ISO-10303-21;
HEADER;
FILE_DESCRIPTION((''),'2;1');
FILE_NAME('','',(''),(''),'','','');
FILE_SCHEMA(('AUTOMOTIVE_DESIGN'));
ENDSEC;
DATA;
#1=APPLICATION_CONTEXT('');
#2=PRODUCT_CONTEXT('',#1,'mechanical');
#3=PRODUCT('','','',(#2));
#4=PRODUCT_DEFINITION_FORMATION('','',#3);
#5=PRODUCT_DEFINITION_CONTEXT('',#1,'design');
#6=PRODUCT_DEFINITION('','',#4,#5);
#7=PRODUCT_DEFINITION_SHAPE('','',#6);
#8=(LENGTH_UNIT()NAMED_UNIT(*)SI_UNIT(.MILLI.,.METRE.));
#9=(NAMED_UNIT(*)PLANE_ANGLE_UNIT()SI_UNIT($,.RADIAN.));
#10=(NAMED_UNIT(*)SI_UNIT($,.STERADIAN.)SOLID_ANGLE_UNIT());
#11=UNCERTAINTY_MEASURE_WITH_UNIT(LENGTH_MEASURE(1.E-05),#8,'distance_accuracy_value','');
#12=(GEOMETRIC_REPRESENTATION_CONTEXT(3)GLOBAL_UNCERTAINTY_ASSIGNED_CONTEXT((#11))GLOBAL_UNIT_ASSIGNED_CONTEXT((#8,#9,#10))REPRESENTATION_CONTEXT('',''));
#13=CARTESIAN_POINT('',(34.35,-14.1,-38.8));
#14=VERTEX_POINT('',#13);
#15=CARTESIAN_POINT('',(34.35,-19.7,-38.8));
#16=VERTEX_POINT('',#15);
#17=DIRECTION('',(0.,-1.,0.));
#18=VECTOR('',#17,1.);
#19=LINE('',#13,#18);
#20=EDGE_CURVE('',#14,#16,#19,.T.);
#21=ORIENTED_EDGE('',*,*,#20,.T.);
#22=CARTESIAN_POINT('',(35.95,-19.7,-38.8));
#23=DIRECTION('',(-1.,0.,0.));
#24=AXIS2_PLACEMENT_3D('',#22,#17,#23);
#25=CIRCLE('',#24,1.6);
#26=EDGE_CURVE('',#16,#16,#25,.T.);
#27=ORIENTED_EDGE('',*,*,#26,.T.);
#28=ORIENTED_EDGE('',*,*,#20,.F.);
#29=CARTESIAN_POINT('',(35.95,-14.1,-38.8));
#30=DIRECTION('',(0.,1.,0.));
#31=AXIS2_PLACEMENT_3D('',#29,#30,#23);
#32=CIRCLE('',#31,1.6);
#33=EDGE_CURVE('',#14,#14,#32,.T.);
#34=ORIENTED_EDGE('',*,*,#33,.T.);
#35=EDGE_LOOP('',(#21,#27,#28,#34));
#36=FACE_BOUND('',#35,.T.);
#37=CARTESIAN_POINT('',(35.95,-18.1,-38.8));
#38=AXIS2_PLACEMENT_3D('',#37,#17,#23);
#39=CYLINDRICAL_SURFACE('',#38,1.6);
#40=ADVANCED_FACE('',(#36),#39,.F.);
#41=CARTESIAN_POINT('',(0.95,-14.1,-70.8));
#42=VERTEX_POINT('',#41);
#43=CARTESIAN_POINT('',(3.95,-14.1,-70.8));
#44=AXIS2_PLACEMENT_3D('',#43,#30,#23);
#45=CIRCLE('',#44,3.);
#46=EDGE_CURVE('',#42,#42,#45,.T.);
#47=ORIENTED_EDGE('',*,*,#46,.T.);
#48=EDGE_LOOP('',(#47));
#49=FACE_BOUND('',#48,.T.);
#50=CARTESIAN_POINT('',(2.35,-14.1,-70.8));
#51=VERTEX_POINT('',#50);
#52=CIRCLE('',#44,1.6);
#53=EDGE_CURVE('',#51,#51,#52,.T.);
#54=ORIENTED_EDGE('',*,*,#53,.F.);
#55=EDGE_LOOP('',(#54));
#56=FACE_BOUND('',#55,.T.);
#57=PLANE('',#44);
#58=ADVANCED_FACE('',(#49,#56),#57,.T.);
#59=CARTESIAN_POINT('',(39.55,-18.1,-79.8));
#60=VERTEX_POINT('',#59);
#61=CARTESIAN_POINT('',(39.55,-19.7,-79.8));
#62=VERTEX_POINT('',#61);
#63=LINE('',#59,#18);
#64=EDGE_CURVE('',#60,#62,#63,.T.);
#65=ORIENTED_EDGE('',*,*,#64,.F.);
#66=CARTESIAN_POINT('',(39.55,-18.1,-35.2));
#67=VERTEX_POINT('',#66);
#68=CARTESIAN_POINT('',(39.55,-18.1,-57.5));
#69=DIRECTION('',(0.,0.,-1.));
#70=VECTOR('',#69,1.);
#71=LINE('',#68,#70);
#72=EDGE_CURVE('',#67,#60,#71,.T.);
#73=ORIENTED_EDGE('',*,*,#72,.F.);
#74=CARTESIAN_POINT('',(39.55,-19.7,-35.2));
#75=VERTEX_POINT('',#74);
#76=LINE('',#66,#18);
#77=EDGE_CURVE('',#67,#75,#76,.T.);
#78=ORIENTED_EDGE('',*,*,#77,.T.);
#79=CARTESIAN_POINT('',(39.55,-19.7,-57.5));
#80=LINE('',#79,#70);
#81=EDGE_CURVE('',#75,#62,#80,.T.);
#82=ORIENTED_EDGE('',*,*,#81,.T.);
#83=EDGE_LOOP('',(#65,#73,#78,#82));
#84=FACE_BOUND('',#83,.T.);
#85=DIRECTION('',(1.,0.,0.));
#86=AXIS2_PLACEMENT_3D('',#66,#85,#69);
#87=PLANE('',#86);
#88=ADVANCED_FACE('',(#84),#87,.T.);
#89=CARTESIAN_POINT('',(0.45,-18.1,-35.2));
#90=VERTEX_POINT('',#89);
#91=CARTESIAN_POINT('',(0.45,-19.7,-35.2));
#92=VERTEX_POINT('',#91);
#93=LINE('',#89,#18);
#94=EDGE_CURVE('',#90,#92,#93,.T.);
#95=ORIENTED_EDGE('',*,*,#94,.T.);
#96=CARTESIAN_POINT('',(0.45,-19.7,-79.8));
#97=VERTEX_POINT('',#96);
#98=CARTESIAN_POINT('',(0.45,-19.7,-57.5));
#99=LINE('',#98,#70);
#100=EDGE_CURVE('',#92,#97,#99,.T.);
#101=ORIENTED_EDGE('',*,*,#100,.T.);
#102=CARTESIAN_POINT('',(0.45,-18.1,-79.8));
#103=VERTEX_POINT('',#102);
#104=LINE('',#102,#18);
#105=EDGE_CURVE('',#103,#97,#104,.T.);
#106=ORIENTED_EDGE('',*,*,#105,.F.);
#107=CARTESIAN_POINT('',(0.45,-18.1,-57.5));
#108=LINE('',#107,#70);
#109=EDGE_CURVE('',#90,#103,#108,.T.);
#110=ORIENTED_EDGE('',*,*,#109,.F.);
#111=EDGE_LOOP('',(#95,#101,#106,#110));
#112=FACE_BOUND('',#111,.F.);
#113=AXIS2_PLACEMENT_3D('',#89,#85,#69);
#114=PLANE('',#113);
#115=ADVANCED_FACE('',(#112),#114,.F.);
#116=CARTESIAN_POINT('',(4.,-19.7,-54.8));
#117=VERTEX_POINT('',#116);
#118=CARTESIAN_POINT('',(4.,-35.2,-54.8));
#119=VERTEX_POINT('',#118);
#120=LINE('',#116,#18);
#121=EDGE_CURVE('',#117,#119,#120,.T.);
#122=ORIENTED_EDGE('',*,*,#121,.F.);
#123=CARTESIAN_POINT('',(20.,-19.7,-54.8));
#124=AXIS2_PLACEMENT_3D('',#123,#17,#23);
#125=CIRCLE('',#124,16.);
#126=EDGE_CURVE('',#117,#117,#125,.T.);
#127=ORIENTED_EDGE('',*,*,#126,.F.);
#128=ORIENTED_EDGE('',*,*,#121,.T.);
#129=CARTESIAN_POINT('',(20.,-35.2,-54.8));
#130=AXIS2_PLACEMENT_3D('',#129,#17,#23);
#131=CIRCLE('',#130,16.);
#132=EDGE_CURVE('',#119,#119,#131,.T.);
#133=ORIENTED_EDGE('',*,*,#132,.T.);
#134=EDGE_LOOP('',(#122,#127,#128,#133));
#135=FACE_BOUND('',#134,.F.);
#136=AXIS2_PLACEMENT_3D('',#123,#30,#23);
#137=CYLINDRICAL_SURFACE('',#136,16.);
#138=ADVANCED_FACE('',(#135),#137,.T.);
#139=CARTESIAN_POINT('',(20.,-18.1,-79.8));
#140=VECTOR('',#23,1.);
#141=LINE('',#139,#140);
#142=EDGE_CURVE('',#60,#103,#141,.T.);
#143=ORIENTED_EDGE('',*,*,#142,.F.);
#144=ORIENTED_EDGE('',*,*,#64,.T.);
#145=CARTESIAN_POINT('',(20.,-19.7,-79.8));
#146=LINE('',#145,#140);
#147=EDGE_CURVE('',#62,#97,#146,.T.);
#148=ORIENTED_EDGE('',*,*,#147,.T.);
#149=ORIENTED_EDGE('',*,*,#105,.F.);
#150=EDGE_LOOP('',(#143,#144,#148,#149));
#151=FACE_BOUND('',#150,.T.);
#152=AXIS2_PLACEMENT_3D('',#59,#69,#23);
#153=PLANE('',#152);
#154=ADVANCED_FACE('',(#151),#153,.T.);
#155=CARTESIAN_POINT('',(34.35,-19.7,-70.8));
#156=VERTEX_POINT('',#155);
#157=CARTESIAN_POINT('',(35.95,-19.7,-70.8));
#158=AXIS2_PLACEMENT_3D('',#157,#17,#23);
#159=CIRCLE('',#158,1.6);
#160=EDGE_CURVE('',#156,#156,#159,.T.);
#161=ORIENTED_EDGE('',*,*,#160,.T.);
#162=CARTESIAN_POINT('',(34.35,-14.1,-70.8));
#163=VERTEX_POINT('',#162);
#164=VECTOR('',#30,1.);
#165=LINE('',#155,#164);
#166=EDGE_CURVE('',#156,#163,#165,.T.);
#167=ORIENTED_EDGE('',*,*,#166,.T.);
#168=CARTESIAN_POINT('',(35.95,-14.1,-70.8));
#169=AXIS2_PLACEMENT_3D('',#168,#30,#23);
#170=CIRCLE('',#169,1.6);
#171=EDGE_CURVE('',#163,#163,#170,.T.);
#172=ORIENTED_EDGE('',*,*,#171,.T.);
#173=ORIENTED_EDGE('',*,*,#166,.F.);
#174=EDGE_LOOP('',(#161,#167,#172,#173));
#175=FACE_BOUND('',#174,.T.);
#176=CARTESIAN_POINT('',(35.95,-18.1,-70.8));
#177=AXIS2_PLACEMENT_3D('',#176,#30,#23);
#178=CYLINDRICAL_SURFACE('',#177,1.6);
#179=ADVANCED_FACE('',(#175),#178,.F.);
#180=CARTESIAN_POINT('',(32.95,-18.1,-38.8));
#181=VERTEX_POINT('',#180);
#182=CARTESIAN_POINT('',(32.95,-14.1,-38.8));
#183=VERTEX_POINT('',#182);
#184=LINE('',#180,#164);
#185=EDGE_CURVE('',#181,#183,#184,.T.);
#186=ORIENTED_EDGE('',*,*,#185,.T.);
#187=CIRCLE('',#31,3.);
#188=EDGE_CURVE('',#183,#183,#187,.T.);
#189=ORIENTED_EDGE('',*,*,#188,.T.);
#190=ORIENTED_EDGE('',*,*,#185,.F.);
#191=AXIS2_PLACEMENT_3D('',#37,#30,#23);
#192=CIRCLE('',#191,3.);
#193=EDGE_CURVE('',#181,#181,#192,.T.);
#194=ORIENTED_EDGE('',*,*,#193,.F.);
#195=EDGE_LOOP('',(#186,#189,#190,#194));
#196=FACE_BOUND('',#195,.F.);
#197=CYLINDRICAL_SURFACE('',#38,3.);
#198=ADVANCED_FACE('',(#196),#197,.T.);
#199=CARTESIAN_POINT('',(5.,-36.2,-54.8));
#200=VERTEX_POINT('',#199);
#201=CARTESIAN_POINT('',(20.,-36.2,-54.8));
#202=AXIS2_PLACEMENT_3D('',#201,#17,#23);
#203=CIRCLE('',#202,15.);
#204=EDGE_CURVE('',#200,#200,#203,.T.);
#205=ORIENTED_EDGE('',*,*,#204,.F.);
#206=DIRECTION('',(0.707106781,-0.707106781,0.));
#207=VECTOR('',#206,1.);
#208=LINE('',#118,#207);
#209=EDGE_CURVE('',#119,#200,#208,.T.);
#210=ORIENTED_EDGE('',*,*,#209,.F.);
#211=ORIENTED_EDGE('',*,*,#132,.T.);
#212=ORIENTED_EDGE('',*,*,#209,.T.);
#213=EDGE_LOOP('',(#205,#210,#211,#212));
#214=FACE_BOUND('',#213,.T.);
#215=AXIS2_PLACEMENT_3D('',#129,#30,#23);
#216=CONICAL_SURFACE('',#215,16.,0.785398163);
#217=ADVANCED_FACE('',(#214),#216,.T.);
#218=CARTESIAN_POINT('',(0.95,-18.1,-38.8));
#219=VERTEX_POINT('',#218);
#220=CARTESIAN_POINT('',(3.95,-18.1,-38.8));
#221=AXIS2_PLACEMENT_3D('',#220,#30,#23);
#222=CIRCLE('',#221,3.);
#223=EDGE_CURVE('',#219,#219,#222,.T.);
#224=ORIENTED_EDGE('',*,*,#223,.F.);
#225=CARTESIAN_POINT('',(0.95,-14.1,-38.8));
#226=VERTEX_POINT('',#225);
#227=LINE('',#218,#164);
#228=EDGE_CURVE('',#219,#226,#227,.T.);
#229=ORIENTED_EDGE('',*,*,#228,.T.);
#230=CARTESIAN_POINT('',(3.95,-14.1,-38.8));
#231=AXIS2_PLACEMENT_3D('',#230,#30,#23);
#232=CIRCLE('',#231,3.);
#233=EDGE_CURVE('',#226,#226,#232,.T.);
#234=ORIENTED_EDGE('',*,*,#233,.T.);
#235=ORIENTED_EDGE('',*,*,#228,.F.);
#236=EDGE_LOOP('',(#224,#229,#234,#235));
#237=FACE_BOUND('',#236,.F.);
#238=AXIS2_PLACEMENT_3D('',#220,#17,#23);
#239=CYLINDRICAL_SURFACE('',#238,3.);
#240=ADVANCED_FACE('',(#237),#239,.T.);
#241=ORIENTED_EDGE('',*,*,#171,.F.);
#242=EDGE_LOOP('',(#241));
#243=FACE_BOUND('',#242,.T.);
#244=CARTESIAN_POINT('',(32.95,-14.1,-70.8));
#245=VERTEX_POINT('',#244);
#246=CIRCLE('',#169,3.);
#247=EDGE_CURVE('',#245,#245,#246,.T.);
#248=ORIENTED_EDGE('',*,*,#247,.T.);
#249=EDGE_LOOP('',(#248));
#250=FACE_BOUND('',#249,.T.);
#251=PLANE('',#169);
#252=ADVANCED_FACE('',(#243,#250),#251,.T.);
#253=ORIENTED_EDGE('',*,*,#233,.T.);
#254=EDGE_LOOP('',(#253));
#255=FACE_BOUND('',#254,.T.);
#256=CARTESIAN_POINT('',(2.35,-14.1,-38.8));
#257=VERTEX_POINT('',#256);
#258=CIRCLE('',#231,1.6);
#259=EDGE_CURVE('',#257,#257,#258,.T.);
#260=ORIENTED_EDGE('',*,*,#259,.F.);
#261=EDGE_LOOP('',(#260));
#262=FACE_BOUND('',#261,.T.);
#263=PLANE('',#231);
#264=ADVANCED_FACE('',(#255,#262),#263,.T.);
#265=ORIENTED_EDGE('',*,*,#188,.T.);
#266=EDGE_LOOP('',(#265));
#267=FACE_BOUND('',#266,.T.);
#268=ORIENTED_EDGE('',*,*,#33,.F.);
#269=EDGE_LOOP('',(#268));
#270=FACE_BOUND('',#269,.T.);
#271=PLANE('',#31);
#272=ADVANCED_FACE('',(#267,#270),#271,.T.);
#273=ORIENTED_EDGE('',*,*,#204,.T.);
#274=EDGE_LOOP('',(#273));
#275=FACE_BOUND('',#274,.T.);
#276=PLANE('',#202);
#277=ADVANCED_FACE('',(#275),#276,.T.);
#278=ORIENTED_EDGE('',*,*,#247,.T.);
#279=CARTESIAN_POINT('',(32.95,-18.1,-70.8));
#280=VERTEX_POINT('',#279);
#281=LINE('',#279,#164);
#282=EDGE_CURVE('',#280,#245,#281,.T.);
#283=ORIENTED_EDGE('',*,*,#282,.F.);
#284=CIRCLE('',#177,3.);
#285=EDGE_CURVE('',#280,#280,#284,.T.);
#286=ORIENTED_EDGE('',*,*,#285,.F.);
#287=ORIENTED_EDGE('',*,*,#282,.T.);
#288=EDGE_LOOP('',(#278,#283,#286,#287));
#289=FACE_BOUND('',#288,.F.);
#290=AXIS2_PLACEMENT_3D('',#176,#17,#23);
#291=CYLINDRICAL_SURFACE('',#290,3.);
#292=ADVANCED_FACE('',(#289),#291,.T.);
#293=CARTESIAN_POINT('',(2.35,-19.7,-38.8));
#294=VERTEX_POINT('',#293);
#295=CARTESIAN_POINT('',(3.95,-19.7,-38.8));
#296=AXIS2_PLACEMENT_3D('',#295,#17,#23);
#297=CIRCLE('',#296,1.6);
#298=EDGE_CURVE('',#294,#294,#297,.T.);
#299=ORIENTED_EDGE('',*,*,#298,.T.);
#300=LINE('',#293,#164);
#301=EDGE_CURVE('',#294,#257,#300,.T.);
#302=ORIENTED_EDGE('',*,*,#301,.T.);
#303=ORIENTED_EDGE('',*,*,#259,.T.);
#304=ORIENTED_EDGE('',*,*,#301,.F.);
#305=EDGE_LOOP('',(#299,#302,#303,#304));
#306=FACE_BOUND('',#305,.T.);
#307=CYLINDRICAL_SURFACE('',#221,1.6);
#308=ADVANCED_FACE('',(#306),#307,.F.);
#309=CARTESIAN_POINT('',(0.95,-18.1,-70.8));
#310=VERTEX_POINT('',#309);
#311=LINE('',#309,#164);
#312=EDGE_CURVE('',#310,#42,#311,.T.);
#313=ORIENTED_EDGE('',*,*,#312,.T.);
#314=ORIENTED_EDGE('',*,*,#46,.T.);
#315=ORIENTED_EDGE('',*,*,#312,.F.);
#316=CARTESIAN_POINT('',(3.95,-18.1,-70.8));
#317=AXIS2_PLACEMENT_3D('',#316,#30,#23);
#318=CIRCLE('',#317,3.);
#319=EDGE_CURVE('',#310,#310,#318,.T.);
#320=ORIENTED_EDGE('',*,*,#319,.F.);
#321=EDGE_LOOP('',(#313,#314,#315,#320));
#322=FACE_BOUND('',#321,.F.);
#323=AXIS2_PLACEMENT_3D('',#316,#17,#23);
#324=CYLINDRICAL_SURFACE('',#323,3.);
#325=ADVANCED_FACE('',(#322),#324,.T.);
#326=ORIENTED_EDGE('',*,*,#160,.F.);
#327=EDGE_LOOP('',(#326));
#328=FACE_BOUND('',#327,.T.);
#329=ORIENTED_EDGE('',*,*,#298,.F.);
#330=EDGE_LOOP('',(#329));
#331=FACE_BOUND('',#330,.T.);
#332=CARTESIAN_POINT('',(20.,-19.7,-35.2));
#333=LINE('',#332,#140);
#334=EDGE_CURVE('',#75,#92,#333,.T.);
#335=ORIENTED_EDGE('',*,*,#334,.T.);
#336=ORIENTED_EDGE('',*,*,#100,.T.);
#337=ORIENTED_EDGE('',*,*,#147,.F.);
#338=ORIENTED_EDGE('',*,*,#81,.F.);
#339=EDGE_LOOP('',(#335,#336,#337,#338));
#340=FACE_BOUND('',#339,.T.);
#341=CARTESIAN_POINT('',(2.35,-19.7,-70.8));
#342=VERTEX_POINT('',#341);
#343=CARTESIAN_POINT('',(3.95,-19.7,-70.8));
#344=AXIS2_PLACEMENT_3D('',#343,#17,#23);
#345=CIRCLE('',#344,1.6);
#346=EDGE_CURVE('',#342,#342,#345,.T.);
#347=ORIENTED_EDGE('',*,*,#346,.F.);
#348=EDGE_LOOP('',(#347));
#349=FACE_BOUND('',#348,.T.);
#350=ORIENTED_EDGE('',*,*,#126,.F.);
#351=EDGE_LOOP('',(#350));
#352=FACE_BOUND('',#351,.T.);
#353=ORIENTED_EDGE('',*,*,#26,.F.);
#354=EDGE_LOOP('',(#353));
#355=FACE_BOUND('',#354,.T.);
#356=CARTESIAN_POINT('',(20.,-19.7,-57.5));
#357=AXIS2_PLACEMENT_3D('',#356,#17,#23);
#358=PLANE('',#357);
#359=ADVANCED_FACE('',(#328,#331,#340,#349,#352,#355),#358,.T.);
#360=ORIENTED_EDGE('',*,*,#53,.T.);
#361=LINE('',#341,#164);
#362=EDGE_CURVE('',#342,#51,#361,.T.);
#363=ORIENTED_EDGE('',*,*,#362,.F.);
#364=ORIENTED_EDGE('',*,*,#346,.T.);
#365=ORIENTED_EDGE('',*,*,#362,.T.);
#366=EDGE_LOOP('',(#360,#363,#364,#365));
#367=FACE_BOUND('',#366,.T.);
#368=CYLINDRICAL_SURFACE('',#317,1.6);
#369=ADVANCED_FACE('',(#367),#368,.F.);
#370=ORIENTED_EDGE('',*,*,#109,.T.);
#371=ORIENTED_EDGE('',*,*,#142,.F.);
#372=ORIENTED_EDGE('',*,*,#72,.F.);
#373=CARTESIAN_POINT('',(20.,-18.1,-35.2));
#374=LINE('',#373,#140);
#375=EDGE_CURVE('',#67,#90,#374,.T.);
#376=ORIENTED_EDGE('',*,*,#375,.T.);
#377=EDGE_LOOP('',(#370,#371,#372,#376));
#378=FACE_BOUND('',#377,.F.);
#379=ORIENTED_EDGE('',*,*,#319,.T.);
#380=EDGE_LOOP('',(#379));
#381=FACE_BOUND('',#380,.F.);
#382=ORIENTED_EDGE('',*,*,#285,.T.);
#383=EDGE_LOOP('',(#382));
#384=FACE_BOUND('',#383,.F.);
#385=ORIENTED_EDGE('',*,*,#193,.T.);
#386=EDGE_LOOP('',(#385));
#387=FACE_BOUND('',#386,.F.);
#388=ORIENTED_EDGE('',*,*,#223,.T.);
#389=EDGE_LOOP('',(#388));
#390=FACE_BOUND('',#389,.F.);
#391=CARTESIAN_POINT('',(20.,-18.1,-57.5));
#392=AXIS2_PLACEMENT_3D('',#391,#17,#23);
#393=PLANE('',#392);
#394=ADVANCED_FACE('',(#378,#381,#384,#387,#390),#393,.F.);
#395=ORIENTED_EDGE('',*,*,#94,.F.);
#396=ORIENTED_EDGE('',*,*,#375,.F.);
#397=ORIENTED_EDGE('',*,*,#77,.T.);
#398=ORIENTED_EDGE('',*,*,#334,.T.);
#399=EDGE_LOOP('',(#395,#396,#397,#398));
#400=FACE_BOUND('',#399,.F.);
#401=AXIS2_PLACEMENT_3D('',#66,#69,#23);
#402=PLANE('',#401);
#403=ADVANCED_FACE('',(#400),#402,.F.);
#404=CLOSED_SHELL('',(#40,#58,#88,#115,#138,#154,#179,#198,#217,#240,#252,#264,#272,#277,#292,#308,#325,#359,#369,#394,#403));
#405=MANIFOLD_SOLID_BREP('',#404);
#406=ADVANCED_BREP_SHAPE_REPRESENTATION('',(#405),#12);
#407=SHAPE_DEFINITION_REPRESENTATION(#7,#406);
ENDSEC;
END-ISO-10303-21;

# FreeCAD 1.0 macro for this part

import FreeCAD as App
import Part
import Sketcher
from FreeCAD import Vector


def edges_at(feature, points):
    """Names of the edges that pass closest to the given points."""
    edges = feature.Shape.Edges
    near = lambda p: min(range(len(edges)), key=lambda i: edges[i].distToShape(Part.Vertex(*p))[0])
    return sorted({f"Edge{near(p) + 1}" for p in points})


def add_polygon(sketch, points):
    """Adds a closed chain of lines whose ends are joined by coincident constraints."""
    first, n = sketch.GeometryCount, len(points)
    for a, b in zip(points, points[1:] + points[:1]):
        sketch.addGeometry(Part.LineSegment(App.Vector(*a, 0), App.Vector(*b, 0)), False)
    for i in range(n):
        sketch.addConstraint(Sketcher.Constraint("Coincident", first + i, 2, first + (i + 1) % n, 1))

doc = App.newDocument("Part")
body = doc.addObject("PartDesign::Body", "Body")

sketch1 = body.newObject("Sketcher::SketchObject", "Sketch")
sketch1.AttachmentSupport = (doc.getObject("XZ_Plane"), [""])
sketch1.MapMode = "FlatFace"
add_polygon(sketch1, [(-19.6, 22.3), (-19.6, -22.3), (19.6, -22.3), (19.6, 22.3)])
sketch1.addGeometry(Part.Circle(Vector(-15.9, -18.7, 0), Vector(0, 0, 1), 1.6), False)
sketch1.addGeometry(Part.Circle(Vector(16.1, -18.7, 0), Vector(0, 0, 1), 1.6), False)
sketch1.addGeometry(Part.Circle(Vector(-15.9, 13.3, 0), Vector(0, 0, 1), 1.6), False)
sketch1.addGeometry(Part.Circle(Vector(16.1, 13.3, 0), Vector(0, 0, 1), 1.6), False)
sketch1.addConstraint([
    Sketcher.Constraint("Vertical", 0),
    Sketcher.Constraint("Horizontal", 1),
    Sketcher.Constraint("Vertical", 2),
    Sketcher.Constraint("Horizontal", 3),
    Sketcher.Constraint("Equal", 4, 5),
    Sketcher.Constraint("Equal", 5, 6),
    Sketcher.Constraint("Equal", 6, 7),
    Sketcher.Constraint("Symmetric", 0, 2, 2, 2, -1, 1),
    Sketcher.Constraint("Horizontal", 4, 3, 5, 3),
    Sketcher.Constraint("Horizontal", 6, 3, 7, 3),
    Sketcher.Constraint("Vertical", 4, 3, 6, 3),
    Sketcher.Constraint("Vertical", 5, 3, 7, 3),
    Sketcher.Constraint("Diameter", 4, 3.2),
    Sketcher.Constraint("DistanceX", 1, 1, 1, 2, 39.1),
    Sketcher.Constraint("DistanceY", 0, 2, 0, 1, 44.6),
    Sketcher.Constraint("DistanceX", 4, 3, 5, 3, 32.0),
    Sketcher.Constraint("DistanceY", 4, 3, 6, 3, 32.0),
    Sketcher.Constraint("DistanceY", 7, 3, 2, 2, 9.0),
    Sketcher.Constraint("DistanceX", 0, 2, 4, 3, 3.6),
])
pad1 = body.newObject("PartDesign::Pad", "Pad")
pad1.Profile = sketch1
pad1.Length = 1.6

sketch2 = body.newObject("Sketcher::SketchObject", "Sketch001")
sketch2.AttachmentSupport = (doc.getObject("XZ_Plane"), [""])
sketch2.MapMode = "FlatFace"
sketch2.AttachmentOffset = App.Placement(Vector(0, 0, 1.6), App.Rotation())
sketch2.addGeometry(Part.Circle(Vector(0, -3, 0), Vector(0, 0, 1), 16), False)
sketch2.addConstraint([
    Sketcher.Constraint("PointOnObject", 0, 3, -2),
    Sketcher.Constraint("Diameter", 0, 32.0),
    Sketcher.Constraint("DistanceY", 0, 3, -1, 1, 2.7),
])
pad2 = body.newObject("PartDesign::Pad", "Pad001")
pad2.Profile = sketch2
pad2.Length = 16.5

sketch3 = body.newObject("Sketcher::SketchObject", "Sketch002")
sketch3.AttachmentSupport = (doc.getObject("XZ_Plane"), [""])
sketch3.MapMode = "FlatFace"
sketch3.addGeometry([
    Part.Circle(Vector(-15.9, -18.7, 0), Vector(0, 0, 1), 3),
    Part.Circle(Vector(-15.9, -18.7, 0), Vector(0, 0, 1), 1.6),
    Part.Circle(Vector(16.1, -18.7, 0), Vector(0, 0, 1), 3),
    Part.Circle(Vector(16.1, -18.7, 0), Vector(0, 0, 1), 1.6),
    Part.Circle(Vector(16.1, 13.3, 0), Vector(0, 0, 1), 3),
    Part.Circle(Vector(16.1, 13.3, 0), Vector(0, 0, 1), 1.6),
    Part.Circle(Vector(-15.9, 13.3, 0), Vector(0, 0, 1), 3),
    Part.Circle(Vector(-15.9, 13.3, 0), Vector(0, 0, 1), 1.6),
], False)
sketch3.addConstraint([
    Sketcher.Constraint("Coincident", 1, 3, 0, 3),
    Sketcher.Constraint("Coincident", 3, 3, 2, 3),
    Sketcher.Constraint("Coincident", 5, 3, 4, 3),
    Sketcher.Constraint("Coincident", 7, 3, 6, 3),
    Sketcher.Constraint("Equal", 0, 2),
    Sketcher.Constraint("Equal", 1, 3),
    Sketcher.Constraint("Equal", 2, 4),
    Sketcher.Constraint("Equal", 3, 5),
    Sketcher.Constraint("Equal", 4, 6),
    Sketcher.Constraint("Equal", 5, 7),
    Sketcher.Constraint("Horizontal", 1, 3, 2, 3),
    Sketcher.Constraint("Horizontal", 5, 3, 6, 3),
    Sketcher.Constraint("Vertical", 3, 3, 4, 3),
    Sketcher.Constraint("Vertical", 1, 3, 6, 3),
    Sketcher.Constraint("Diameter", 0, 6.0),
    Sketcher.Constraint("Diameter", 1, 3.2),
    Sketcher.Constraint("DistanceX", 0, 3, 2, 3, 32.0),
    Sketcher.Constraint("DistanceY", 2, 3, 4, 3, 32.0),
    Sketcher.Constraint("DistanceY", 0, 3, -1, 1, 18.7),
    Sketcher.Constraint("DistanceX", 0, 3, -1, 1, 15.95),
])
pad3 = body.newObject("PartDesign::Pad", "Pad002")
pad3.Profile = sketch3
pad3.Length = 4
pad3.Reversed = True
doc.recompute()

chamfer = body.newObject("PartDesign::Chamfer", "Chamfer")
chamfer.Base = (pad3, edges_at(pad3, [(-16, -18.1, -2.7)]))
chamfer.Size = 1
body2 = doc.addObject("PartDesign::Body", "Body001")
doc.recompute()

body.Placement = App.Placement(Vector(-20, -18.1, -102.9), App.Rotation(Vector(0, 0, 1), 0))
boolean = body2.newObject("PartDesign::Boolean", "Boolean")
boolean.Type = "Fuse"
boolean.addObjects([body])
body3 = doc.addObject("PartDesign::Body", "Body002")
doc.recompute()

body2.Placement = App.Placement(Vector(40, 0, 0), App.Rotation(Vector(0, 0, 1), 0))
boolean2 = body3.newObject("PartDesign::Boolean", "Boolean001")
boolean2.Type = "Fuse"
boolean2.addObjects([body2])
body4 = doc.addObject("PartDesign::Body", "Body003")
doc.recompute()

body3.Placement = App.Placement(Vector(0, 0, -160.4), App.Rotation(Vector(0, 1, 0), 180))
boolean3 = body4.newObject("PartDesign::Boolean", "Boolean002")
boolean3.Type = "Fuse"
boolean3.addObjects([body3])
body5 = doc.addObject("PartDesign::Body", "Body004")
doc.recompute()

body4.Placement = App.Placement(Vector(40, 0, 0), App.Rotation(Vector(0, 0, 1), 0))
boolean4 = body5.newObject("PartDesign::Boolean", "Boolean003")
boolean4.Type = "Fuse"
boolean4.addObjects([body4])

doc.recompute()
